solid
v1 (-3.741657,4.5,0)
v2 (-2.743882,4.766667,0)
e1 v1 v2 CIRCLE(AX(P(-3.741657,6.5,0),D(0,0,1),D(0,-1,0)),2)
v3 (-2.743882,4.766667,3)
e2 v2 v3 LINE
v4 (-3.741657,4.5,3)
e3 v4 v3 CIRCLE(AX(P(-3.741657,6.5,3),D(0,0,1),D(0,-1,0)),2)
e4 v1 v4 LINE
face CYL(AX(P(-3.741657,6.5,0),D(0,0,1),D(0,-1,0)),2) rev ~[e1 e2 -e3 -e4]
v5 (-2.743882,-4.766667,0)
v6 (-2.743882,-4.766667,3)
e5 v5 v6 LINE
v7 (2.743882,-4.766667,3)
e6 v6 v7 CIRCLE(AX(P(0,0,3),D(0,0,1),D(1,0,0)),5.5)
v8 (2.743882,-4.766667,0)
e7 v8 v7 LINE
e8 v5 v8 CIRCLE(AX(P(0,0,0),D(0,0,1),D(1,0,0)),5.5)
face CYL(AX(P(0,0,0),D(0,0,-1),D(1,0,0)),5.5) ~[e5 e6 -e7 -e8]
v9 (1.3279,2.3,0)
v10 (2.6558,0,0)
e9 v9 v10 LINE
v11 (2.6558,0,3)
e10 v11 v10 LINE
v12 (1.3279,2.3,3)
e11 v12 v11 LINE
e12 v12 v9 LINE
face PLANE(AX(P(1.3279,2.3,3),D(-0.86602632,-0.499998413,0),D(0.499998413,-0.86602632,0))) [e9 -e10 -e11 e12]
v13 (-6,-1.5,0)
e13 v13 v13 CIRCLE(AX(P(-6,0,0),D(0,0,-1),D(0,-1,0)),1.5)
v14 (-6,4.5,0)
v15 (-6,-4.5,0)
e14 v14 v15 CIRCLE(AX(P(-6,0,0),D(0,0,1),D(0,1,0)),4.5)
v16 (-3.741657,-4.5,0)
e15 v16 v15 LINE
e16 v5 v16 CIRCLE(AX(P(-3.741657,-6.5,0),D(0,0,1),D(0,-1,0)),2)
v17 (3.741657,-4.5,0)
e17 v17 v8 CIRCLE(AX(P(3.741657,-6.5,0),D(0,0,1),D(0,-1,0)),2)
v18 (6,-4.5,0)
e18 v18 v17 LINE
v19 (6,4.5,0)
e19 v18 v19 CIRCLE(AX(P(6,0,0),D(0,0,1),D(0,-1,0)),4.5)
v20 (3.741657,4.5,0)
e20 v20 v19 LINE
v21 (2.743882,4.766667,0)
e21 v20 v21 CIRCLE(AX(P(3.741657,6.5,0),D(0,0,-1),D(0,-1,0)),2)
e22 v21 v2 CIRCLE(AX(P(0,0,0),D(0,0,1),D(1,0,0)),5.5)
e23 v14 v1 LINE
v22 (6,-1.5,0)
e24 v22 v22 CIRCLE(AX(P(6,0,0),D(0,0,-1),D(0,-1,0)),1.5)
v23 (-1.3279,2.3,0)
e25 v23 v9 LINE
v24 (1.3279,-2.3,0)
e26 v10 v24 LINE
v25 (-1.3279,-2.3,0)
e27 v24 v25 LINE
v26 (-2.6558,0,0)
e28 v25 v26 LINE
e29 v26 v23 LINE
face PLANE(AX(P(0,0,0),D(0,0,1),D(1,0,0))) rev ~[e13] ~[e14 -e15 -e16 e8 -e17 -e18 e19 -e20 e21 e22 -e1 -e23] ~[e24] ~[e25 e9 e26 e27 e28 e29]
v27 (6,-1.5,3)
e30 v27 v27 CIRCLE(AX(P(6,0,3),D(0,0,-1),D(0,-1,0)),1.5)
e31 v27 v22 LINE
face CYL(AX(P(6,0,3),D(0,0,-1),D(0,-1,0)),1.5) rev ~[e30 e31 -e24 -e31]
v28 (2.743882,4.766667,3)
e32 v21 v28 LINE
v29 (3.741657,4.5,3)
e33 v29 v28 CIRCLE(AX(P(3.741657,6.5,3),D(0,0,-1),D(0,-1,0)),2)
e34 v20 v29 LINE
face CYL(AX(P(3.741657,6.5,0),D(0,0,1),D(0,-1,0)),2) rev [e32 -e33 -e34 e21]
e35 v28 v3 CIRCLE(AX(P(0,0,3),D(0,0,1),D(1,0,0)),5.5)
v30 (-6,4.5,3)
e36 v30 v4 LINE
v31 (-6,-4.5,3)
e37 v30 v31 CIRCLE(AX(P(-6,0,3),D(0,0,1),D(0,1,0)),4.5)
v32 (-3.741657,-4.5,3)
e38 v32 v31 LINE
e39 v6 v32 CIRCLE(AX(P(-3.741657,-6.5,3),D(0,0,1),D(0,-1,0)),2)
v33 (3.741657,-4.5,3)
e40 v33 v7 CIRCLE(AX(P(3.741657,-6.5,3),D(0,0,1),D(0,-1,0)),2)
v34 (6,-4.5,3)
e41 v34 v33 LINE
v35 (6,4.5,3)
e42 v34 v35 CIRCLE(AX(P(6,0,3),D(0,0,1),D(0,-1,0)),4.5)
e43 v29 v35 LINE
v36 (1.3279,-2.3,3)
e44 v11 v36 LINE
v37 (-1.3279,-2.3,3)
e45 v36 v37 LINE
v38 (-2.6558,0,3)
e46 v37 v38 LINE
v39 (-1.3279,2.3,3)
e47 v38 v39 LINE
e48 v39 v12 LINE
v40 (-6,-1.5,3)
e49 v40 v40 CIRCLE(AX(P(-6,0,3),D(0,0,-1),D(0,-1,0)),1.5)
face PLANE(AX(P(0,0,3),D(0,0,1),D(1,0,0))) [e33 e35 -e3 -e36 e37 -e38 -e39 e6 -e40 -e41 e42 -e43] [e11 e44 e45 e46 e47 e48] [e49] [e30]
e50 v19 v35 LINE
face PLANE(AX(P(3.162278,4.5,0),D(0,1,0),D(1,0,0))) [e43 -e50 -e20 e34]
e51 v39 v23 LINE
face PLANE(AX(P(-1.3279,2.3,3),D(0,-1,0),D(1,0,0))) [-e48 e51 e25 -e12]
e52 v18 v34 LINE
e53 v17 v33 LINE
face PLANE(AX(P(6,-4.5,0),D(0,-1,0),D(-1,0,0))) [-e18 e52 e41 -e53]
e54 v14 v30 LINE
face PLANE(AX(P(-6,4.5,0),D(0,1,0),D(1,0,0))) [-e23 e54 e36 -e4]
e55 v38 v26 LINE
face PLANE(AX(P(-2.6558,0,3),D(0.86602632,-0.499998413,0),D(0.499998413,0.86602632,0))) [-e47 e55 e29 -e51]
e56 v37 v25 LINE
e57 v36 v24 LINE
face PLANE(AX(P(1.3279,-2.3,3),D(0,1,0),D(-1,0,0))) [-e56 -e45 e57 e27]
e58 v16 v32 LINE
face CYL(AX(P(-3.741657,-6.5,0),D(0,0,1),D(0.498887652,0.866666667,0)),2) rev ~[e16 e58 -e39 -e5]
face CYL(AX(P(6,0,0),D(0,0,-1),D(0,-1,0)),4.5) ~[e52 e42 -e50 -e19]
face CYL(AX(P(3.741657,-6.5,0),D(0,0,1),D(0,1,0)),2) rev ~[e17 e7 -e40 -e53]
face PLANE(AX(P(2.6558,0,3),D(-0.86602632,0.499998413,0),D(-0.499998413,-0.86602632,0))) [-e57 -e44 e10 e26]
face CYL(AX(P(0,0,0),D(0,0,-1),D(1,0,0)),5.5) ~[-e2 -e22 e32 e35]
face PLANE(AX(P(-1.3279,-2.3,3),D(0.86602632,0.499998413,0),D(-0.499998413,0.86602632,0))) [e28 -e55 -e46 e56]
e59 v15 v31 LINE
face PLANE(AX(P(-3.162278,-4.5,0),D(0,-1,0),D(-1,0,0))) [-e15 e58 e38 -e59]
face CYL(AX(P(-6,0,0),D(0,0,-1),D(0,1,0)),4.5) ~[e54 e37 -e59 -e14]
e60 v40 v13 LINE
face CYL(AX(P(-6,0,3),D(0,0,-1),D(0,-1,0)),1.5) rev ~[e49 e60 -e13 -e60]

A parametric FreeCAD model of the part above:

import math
import FreeCAD as App
import Part
import Sketcher
Q = App.Units.Quantity


def edges_at(feature, points):
    """Names of the edges that pass closest to the given points."""
    edges = feature.Shape.Edges
    near = lambda p: min(range(len(edges)), key=lambda i: edges[i].distToShape(Part.Vertex(*p))[0])
    return sorted({f"Edge{near(p) + 1}" for p in points})


def add_polygon(sketch, points):
    """Adds a closed chain of lines whose ends are joined by coincident constraints."""
    first, n = sketch.GeometryCount, len(points)
    for a, b in zip(points, points[1:] + points[:1]):
        sketch.addGeometry(Part.LineSegment(App.Vector(*a, 0), App.Vector(*b, 0)), False)
    for i in range(n):
        sketch.addConstraint(Sketcher.Constraint("Coincident", first + i, 2, first + (i + 1) % n, 1))

doc = App.newDocument("Part")
body = doc.addObject("PartDesign::Body", "Body")

# Sketch on XY plane
sketch1 = body.newObject("Sketcher::SketchObject", "Sketch")
sketch1.AttachmentSupport = (doc.getObject("XY_Plane"), [""])
sketch1.MapMode = "FlatFace"
sketch1.addGeometry([
    Part.LineSegment(App.Vector(3.2, -4.5, 0), App.Vector(6, -4.5, 0)),  # 0
    Part.ArcOfCircle(Part.Circle(App.Vector(6, 0, 0), App.Vector(0, 0, 1), 4.5), math.radians(-90), math.radians(90)),  # 1
    Part.LineSegment(App.Vector(6, 4.5, 0), App.Vector(3.2, 4.5, 0)),  # 2
    Part.ArcOfCircle(Part.Circle(App.Vector(0, 0, 0), App.Vector(0, 0, 1), 5.5), math.radians(55), math.radians(125)),  # 3
    Part.LineSegment(App.Vector(-3.2, 4.5, 0), App.Vector(-6, 4.5, 0)),  # 4
    Part.ArcOfCircle(Part.Circle(App.Vector(-6, 0, 0), App.Vector(0, 0, 1), 4.5), math.radians(90), math.radians(270)),  # 5
    Part.LineSegment(App.Vector(-6, -4.5, 0), App.Vector(-3.2, -4.5, 0)),  # 6
    Part.ArcOfCircle(Part.Circle(App.Vector(0, 0, 0), App.Vector(0, 0, 1), 5.5), math.radians(-125), math.radians(-55)),  # 7
], False)
sketch1.addConstraint([
    Sketcher.Constraint("Tangent", 0, 2, 1, 1),
    Sketcher.Constraint("Tangent", 1, 2, 2, 1),
    Sketcher.Constraint("Coincident", 2, 2, 3, 1),
    Sketcher.Constraint("Coincident", 3, 2, 4, 1),
    Sketcher.Constraint("Tangent", 4, 2, 5, 1),
    Sketcher.Constraint("Tangent", 5, 2, 6, 1),
    Sketcher.Constraint("Coincident", 6, 2, 7, 1),
    Sketcher.Constraint("Coincident", 7, 2, 0, 1),
    Sketcher.Constraint("Horizontal", 0),
    Sketcher.Constraint("Horizontal", 2),
    Sketcher.Constraint("Horizontal", 4),
    Sketcher.Constraint("Horizontal", 6),
    Sketcher.Constraint("Coincident", 3, 3, -1, 1),
    Sketcher.Constraint("Coincident", 7, 3, -1, 1),
    Sketcher.Constraint("Equal", 1, 5),
    Sketcher.Constraint("Equal", 3, 7),
    Sketcher.Constraint("Symmetric", 1, 3, 5, 3, -1, 1),
    Sketcher.Constraint("PointOnObject", 1, 3, -1),
    Sketcher.Constraint("Radius", 1, 4.5),
    Sketcher.Constraint("Radius", 3, 5.5),
    Sketcher.Constraint("DistanceX", -1, 1, 1, 3, 6.0),
])
pad1 = body.newObject("PartDesign::Pad", "Pad")
pad1.Profile = sketch1
pad1.Length = 3
doc.recompute()

fillet = body.newObject("PartDesign::Fillet", "Fillet")
fillet.Base = (pad1, edges_at(pad1, [
    (3.162, -4.5, 1.5),
    (-3.162, -4.5, 1.5),
    (3.162, 4.5, 1.5),
    (-3.162, 4.5, 1.5),
]))
fillet.Radius = 2

# Sketch on XY plane
sketch2 = body.newObject("Sketcher::SketchObject", "Sketch001")
sketch2.AttachmentSupport = (doc.getObject("XY_Plane"), [""])
sketch2.MapMode = "FlatFace"
sketch2.AttachmentOffset = App.Placement(App.Vector(0, 0, 3), App.Rotation())
sketch2.addGeometry([
    Part.Circle(App.Vector(-6, 0, 0), App.Vector(0, 0, 1), 1.5),
    Part.Circle(App.Vector(6, 0, 0), App.Vector(0, 0, 1), 1.5),
], False)
sketch2.addConstraint([
    Sketcher.Constraint("Equal", 0, 1),
    Sketcher.Constraint("Symmetric", 0, 3, 1, 3, -1, 1),
    Sketcher.Constraint("PointOnObject", 0, 3, -1),
    Sketcher.Constraint("Diameter", 0, 3.0),
    Sketcher.Constraint("DistanceX", 0, 3, -1, 1, 6.0),
])
doc.recompute()
hole = body.newObject("PartDesign::Hole", "Hole")
hole.Profile = sketch2
hole.ThreadType = "None"
hole.Diameter = 3
hole.DepthType = "ThroughAll"

# Sketch on XY plane
sketch3 = body.newObject("Sketcher::SketchObject", "Sketch002")
sketch3.AttachmentSupport = (doc.getObject("XY_Plane"), [""])
sketch3.MapMode = "FlatFace"
sketch3.AttachmentOffset = App.Placement(App.Vector(0, 0, 3), App.Rotation())
add_polygon(sketch3, [(2.7, 0), (1.3, 2.3), (-1.3, 2.3), (-2.7, 0), (-1.3, -2.3), (1.3, -2.3)])  # lines 0-5
sketch3.addConstraint([
    Sketcher.Constraint("Horizontal", 1),
    Sketcher.Constraint("Horizontal", 4),
    Sketcher.Constraint("Symmetric", 0, 2, 3, 2, -1, 1),
    Sketcher.Constraint("Symmetric", 2, 2, 5, 2, -1, 1),
    Sketcher.Constraint("PointOnObject", 2, 2, -1),
    Sketcher.Constraint("Parallel", 2, 5),
    Sketcher.Constraint("Vertical", 1, 2, 3, 2),
    Sketcher.Constraint("DistanceY", 3, 2, 1, 2, 4.6),
    Sketcher.Constraint("Angle", 0, Q("120 deg")),
    Sketcher.Constraint("DistanceX", 1, 2, 1, 1, 2.6558),
])
pocket1 = body.newObject("PartDesign::Pocket", "Pocket")
pocket1.Profile = sketch3
pocket1.Type = "ThroughAll"

doc.recompute()
